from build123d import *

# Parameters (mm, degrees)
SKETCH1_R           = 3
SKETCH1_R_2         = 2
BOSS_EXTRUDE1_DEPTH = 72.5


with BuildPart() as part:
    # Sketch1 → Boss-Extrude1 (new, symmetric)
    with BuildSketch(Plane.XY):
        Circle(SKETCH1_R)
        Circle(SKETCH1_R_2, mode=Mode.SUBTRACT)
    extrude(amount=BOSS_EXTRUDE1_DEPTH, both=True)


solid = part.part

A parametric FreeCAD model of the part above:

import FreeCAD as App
import Part
import Sketcher
from FreeCAD import Vector

doc = App.newDocument("Part")
body = doc.addObject("PartDesign::Body", "Body")

# Sketch on XY plane
sketch1 = body.newObject("Sketcher::SketchObject", "Sketch")
sketch1.AttachmentSupport = (doc.getObject("XY_Plane"), [""])
sketch1.MapMode = "FlatFace"
sketch1.addGeometry(Part.Circle(Vector(0, 0, 0), Vector(0, 0, 1), 3), False)
sketch1.addGeometry(Part.Circle(Vector(0, 0, 0), Vector(0, 0, 1), 2), False)
sketch1.addConstraint(Sketcher.Constraint("Coincident", 0, 3, -1, 1))
sketch1.addConstraint(Sketcher.Constraint("Coincident", 1, 3, -1, 1))
sketch1.addConstraint(Sketcher.Constraint("Diameter", 0, 6.0))
sketch1.addConstraint(Sketcher.Constraint("Diameter", 1, 4.0))
pad1 = body.newObject("PartDesign::Pad", "Pad")
pad1.Profile = sketch1
pad1.Length = 145
pad1.Midplane = True

doc.recompute()
